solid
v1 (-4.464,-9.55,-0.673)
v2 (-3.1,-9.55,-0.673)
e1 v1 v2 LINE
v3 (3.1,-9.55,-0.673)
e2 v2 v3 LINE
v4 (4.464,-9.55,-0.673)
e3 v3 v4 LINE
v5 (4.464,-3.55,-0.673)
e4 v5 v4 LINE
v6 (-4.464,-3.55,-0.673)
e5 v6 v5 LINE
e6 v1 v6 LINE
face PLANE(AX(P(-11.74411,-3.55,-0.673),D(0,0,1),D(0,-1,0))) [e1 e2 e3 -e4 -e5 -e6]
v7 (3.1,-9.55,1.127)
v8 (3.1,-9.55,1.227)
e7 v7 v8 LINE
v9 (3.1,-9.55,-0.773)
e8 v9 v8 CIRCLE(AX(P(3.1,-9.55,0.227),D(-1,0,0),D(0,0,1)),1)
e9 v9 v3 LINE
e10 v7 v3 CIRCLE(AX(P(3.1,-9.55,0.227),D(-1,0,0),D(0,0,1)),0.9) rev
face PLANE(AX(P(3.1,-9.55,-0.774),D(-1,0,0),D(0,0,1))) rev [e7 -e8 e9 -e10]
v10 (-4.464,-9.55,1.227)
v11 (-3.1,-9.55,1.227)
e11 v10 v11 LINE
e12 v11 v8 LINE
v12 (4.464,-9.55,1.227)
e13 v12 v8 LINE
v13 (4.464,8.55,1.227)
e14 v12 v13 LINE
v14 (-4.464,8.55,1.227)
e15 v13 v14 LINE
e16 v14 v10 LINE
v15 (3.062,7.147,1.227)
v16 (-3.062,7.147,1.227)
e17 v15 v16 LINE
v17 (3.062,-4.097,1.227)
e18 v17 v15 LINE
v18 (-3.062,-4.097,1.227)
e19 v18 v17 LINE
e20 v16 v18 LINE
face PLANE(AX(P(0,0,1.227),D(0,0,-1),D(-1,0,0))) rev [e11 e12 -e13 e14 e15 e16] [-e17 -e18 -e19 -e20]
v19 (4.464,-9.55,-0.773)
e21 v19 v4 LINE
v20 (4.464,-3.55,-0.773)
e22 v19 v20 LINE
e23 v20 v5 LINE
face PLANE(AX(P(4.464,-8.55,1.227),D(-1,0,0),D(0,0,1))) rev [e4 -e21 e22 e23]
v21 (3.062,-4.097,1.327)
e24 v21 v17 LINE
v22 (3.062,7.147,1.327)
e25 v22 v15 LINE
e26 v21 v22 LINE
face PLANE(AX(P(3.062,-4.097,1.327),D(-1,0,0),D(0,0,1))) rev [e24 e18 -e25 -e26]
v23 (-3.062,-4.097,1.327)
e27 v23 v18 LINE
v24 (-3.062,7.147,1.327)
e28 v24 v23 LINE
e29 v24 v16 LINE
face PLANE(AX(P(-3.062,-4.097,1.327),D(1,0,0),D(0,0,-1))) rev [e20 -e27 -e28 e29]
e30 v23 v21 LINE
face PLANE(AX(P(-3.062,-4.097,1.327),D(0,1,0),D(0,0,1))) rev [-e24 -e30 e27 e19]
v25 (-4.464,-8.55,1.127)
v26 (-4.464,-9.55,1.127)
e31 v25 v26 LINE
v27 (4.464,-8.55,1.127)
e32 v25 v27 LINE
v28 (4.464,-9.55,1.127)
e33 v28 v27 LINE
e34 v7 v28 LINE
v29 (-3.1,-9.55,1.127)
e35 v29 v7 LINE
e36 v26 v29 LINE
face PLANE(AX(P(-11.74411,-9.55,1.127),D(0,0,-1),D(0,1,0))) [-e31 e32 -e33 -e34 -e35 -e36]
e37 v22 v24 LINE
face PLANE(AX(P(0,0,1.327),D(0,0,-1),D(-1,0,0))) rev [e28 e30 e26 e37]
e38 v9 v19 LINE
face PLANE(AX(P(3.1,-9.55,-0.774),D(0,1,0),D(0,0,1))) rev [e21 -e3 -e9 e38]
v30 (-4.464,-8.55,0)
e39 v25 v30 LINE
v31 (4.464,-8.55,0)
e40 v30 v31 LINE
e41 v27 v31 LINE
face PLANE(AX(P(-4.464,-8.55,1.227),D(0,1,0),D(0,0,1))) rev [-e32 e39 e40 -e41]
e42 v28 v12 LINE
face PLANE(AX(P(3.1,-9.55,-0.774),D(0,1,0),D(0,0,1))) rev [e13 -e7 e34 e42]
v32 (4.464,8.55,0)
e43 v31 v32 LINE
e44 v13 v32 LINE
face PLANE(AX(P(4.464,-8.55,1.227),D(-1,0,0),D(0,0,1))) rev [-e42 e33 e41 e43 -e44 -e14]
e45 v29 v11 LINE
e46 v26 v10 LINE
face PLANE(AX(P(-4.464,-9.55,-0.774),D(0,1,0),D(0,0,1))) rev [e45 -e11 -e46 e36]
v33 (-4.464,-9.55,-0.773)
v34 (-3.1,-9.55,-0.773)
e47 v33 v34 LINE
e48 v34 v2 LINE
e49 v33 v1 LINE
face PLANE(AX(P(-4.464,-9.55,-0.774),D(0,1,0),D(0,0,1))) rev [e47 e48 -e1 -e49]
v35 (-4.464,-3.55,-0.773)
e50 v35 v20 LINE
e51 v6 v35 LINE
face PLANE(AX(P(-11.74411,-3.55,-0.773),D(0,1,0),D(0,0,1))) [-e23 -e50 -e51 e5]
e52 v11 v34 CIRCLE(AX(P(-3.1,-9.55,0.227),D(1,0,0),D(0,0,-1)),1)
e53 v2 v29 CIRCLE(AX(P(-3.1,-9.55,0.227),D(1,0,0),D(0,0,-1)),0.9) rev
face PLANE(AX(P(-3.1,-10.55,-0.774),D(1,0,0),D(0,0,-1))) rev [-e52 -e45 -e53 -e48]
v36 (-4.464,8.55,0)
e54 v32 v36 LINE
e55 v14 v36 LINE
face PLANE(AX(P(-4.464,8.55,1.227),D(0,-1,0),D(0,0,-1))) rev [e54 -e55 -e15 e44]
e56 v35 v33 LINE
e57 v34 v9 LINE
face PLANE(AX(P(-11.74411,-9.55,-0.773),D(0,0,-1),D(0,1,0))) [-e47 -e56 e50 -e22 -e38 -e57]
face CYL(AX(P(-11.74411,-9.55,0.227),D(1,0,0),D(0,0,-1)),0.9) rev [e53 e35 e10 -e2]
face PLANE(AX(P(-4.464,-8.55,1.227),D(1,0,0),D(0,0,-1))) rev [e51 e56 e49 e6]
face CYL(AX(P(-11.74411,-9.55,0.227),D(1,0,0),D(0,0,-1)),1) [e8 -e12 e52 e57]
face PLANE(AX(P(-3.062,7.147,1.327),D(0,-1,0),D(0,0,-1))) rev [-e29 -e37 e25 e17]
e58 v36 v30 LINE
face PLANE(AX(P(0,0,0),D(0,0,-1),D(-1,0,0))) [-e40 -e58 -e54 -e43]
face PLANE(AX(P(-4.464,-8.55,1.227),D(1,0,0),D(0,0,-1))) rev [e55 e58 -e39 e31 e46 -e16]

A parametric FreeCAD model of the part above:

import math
import FreeCAD as App
import Part
import Sketcher
Q = App.Units.Quantity

doc = App.newDocument("Part")
params = doc.addObject("Spreadsheet::Sheet", "Params")
for row, (alias, value) in enumerate([
    ("sketch1_height", "17.1 mm"),
    ("pad1_length", "1.227 mm"),
    ("pad2_length", "0.1 mm"),
    ("sketch3_radius", "1 mm"),
    ("sketch3_radius2", "0.9 mm"),
    ("sketch3_width", "1 mm"),
    ("sketch3_width2", "6 mm"),
    ("pad3_length", "8.928 mm"),
    ("sketch4_height", "1 mm"),
    ("pocket1_length", "2 mm"),
    ("sketch5_height", "1 mm"),
    ("pocket2_length", "2 mm"),
], start=1):
    params.set(f"A{row}", alias)
    params.set(f"B{row}", "=" + value)
    params.setAlias(f"B{row}", alias)

body = doc.addObject("PartDesign::Body", "Body")

sketch1 = body.newObject("Sketcher::SketchObject", "Sketch")
sketch1.AttachmentSupport = (doc.getObject("XY_Plane"), [""])
sketch1.MapMode = "FlatFace"
sketch1.addGeometry([
    Part.LineSegment(App.Vector(-4, 9, 0), App.Vector(-4, -9, 0)),
    Part.LineSegment(App.Vector(-4, -9, 0), App.Vector(4, -9, 0)),
    Part.LineSegment(App.Vector(4, -9, 0), App.Vector(4, 9, 0)),
    Part.LineSegment(App.Vector(4, 9, 0), App.Vector(-4, 9, 0)),
], False)
sketch1.addConstraint([
    Sketcher.Constraint("Coincident", 0, 2, 1, 1),
    Sketcher.Constraint("Coincident", 1, 2, 2, 1),
    Sketcher.Constraint("Coincident", 2, 2, 3, 1),
    Sketcher.Constraint("Coincident", 3, 2, 0, 1),
    Sketcher.Constraint("Vertical", 0),
    Sketcher.Constraint("Horizontal", 1),
    Sketcher.Constraint("Vertical", 2),
    Sketcher.Constraint("Horizontal", 3),
    Sketcher.Constraint("Symmetric", 0, 2, 2, 2, -1, 1),
    Sketcher.Constraint("DistanceY", 0, 2, 0, 1, Q("17.1 mm")),
    Sketcher.Constraint("DistanceX", 1, 1, 1, 2, Q("8.928 mm")),
])
sketch1.setExpression("Constraints[9]", "Params.sketch1_height")
pad1 = body.newObject("PartDesign::Pad", "Pad")
pad1.Profile = sketch1
pad1.setExpression("Length", "Params.pad1_length")

sketch2 = body.newObject("Sketcher::SketchObject", "Sketch001")
sketch2.AttachmentSupport = (doc.getObject("XY_Plane"), [""])
sketch2.MapMode = "FlatFace"
sketch2.AttachmentOffset = App.Placement(App.Vector(0, 0, 1.227), App.Rotation())
sketch2.addGeometry([
    Part.LineSegment(App.Vector(-3, 7, 0), App.Vector(-3, -4, 0)),
    Part.LineSegment(App.Vector(-3, -4, 0), App.Vector(3, -4, 0)),
    Part.LineSegment(App.Vector(3, -4, 0), App.Vector(3, 7, 0)),
    Part.LineSegment(App.Vector(3, 7, 0), App.Vector(-3, 7, 0)),
], False)
sketch2.addConstraint([
    Sketcher.Constraint("Coincident", 0, 2, 1, 1),
    Sketcher.Constraint("Coincident", 1, 2, 2, 1),
    Sketcher.Constraint("Coincident", 2, 2, 3, 1),
    Sketcher.Constraint("Coincident", 3, 2, 0, 1),
    Sketcher.Constraint("Vertical", 0),
    Sketcher.Constraint("Horizontal", 1),
    Sketcher.Constraint("Vertical", 2),
    Sketcher.Constraint("Horizontal", 3),
    Sketcher.Constraint("DistanceX", 1, 1, 1, 2, Q("6.124 mm")),
    Sketcher.Constraint("DistanceY", 0, 2, 0, 1, Q("11.244 mm")),
    Sketcher.Constraint("DistanceX", 0, 2, -1, 1, Q("3.062 mm")),
    Sketcher.Constraint("DistanceY", 0, 2, -1, 1, Q("4.097 mm")),
])
pad2 = body.newObject("PartDesign::Pad", "Pad001")
pad2.Profile = sketch2
pad2.setExpression("Length", "Params.pad2_length")

sketch3 = body.newObject("Sketcher::SketchObject", "Sketch002")
sketch3.AttachmentSupport = (doc.getObject("YZ_Plane"), [""])
sketch3.MapMode = "FlatFace"
sketch3.AttachmentOffset = App.Placement(App.Vector(0, 0, 4.464), App.Rotation())
sketch3.addGeometry([
    Part.LineSegment(App.Vector(-8.55, 1.23, 0), App.Vector(-9.55, 1.23, 0)),
    Part.ArcOfCircle(Part.Circle(App.Vector(-9.55, 0.23, 0), App.Vector(0, 0, 1), 1), math.radians(90), math.radians(270)),
    Part.LineSegment(App.Vector(-9.55, -0.77, 0), App.Vector(-3.55, -0.77, 0)),
    Part.LineSegment(App.Vector(-3.55, -0.77, 0), App.Vector(-3.55, -0.67, 0)),
    Part.LineSegment(App.Vector(-3.55, -0.67, 0), App.Vector(-9.55, -0.67, 0)),
    Part.ArcOfCircle(Part.Circle(App.Vector(-9.55, 0.23, 0), App.Vector(0, 0, 1), 0.9), math.radians(90), math.radians(270)),
    Part.LineSegment(App.Vector(-9.55, 1.13, 0), App.Vector(-8.55, 1.13, 0)),
    Part.LineSegment(App.Vector(-8.55, 1.13, 0), App.Vector(-8.55, 1.23, 0)),
], False)
sketch3.addConstraint([
    Sketcher.Constraint("Tangent", 0, 2, 1, 1),
    Sketcher.Constraint("Tangent", 1, 2, 2, 1),
    Sketcher.Constraint("Coincident", 2, 2, 3, 1),
    Sketcher.Constraint("Coincident", 3, 2, 4, 1),
    Sketcher.Constraint("Tangent", 4, 2, 5, 2),
    Sketcher.Constraint("Tangent", 5, 1, 6, 1),
    Sketcher.Constraint("Coincident", 6, 2, 7, 1),
    Sketcher.Constraint("Coincident", 7, 2, 0, 1),
    Sketcher.Constraint("Horizontal", 0),
    Sketcher.Constraint("Horizontal", 2),
    Sketcher.Constraint("Vertical", 3),
    Sketcher.Constraint("Horizontal", 4),
    Sketcher.Constraint("Horizontal", 6),
    Sketcher.Constraint("Vertical", 7),
    Sketcher.Constraint("Coincident", 5, 3, 1, 3),
    Sketcher.Constraint("Radius", 1, Q("1 mm")),
    Sketcher.Constraint("Radius", 5, Q("0.9 mm")),
    Sketcher.Constraint("DistanceX", 0, 2, 0, 1, Q("1 mm")),
    Sketcher.Constraint("DistanceX", 2, 1, 2, 2, Q("6 mm")),
    Sketcher.Constraint("DistanceX", 1, 3, -1, 1, Q("9.55 mm")),
    Sketcher.Constraint("DistanceY", -1, 1, 1, 3, Q("0.227 mm")),
])
sketch3.setExpression("Constraints[15]", "Params.sketch3_radius")
sketch3.setExpression("Constraints[16]", "Params.sketch3_radius2")
sketch3.setExpression("Constraints[17]", "Params.sketch3_width")
sketch3.setExpression("Constraints[18]", "Params.sketch3_width2")
pad3 = body.newObject("PartDesign::Pad", "Pad002")
pad3.Profile = sketch3
pad3.setExpression("Length", "Params.pad3_length")
pad3.Reversed = True

sketch4 = body.newObject("Sketcher::SketchObject", "Sketch003")
sketch4.AttachmentSupport = (doc.getObject("XY_Plane"), [""])
sketch4.MapMode = "FlatFace"
sketch4.AttachmentOffset = App.Placement(App.Vector(0, 0, 1.227), App.Rotation())
sketch4.addGeometry([
    Part.LineSegment(App.Vector(3.1, -9.6, 0), App.Vector(3.1, -10.6, 0)),
    Part.LineSegment(App.Vector(3.1, -10.6, 0), App.Vector(4.5, -10.6, 0)),
    Part.LineSegment(App.Vector(4.5, -10.6, 0), App.Vector(4.5, -9.6, 0)),
    Part.LineSegment(App.Vector(4.5, -9.6, 0), App.Vector(3.1, -9.6, 0)),
], False)
sketch4.addConstraint([
    Sketcher.Constraint("Coincident", 0, 2, 1, 1),
    Sketcher.Constraint("Coincident", 1, 2, 2, 1),
    Sketcher.Constraint("Coincident", 2, 2, 3, 1),
    Sketcher.Constraint("Coincident", 3, 2, 0, 1),
    Sketcher.Constraint("Vertical", 0),
    Sketcher.Constraint("Horizontal", 1),
    Sketcher.Constraint("Vertical", 2),
    Sketcher.Constraint("Horizontal", 3),
    Sketcher.Constraint("DistanceY", 0, 2, 0, 1, Q("1 mm")),
    Sketcher.Constraint("DistanceX", -1, 1, 0, 2, Q("3.1 mm")),
    Sketcher.Constraint("DistanceX", 1, 1, 1, 2, Q("1.364 mm")),
    Sketcher.Constraint("DistanceY", 0, 2, -1, 1, Q("10.55 mm")),
])
sketch4.setExpression("Constraints[8]", "Params.sketch4_height")
pocket1 = body.newObject("PartDesign::Pocket", "Pocket")
pocket1.Profile = sketch4
pocket1.setExpression("Length", "Params.pocket1_length")

sketch5 = body.newObject("Sketcher::SketchObject", "Sketch004")
sketch5.AttachmentSupport = (doc.getObject("XY_Plane"), [""])
sketch5.MapMode = "FlatFace"
sketch5.AttachmentOffset = App.Placement(App.Vector(0, 0, 1.227), App.Rotation())
sketch5.addGeometry([
    Part.LineSegment(App.Vector(-4.5, -9.6, 0), App.Vector(-4.5, -10.6, 0)),
    Part.LineSegment(App.Vector(-4.5, -10.6, 0), App.Vector(-3.1, -10.6, 0)),
    Part.LineSegment(App.Vector(-3.1, -10.6, 0), App.Vector(-3.1, -9.6, 0)),
    Part.LineSegment(App.Vector(-3.1, -9.6, 0), App.Vector(-4.5, -9.6, 0)),
], False)
sketch5.addConstraint([
    Sketcher.Constraint("Coincident", 0, 2, 1, 1),
    Sketcher.Constraint("Coincident", 1, 2, 2, 1),
    Sketcher.Constraint("Coincident", 2, 2, 3, 1),
    Sketcher.Constraint("Coincident", 3, 2, 0, 1),
    Sketcher.Constraint("Vertical", 0),
    Sketcher.Constraint("Horizontal", 1),
    Sketcher.Constraint("Vertical", 2),
    Sketcher.Constraint("Horizontal", 3),
    Sketcher.Constraint("DistanceY", 0, 2, 0, 1, Q("1 mm")),
    Sketcher.Constraint("DistanceX", 1, 2, -1, 1, Q("3.1 mm")),
    Sketcher.Constraint("DistanceX", 1, 1, 1, 2, Q("1.364 mm")),
    Sketcher.Constraint("DistanceY", 0, 2, -1, 1, Q("10.55 mm")),
])
sketch5.setExpression("Constraints[8]", "Params.sketch5_height")
pocket2 = body.newObject("PartDesign::Pocket", "Pocket001")
pocket2.Profile = sketch5
pocket2.setExpression("Length", "Params.pocket2_length")

doc.recompute()
